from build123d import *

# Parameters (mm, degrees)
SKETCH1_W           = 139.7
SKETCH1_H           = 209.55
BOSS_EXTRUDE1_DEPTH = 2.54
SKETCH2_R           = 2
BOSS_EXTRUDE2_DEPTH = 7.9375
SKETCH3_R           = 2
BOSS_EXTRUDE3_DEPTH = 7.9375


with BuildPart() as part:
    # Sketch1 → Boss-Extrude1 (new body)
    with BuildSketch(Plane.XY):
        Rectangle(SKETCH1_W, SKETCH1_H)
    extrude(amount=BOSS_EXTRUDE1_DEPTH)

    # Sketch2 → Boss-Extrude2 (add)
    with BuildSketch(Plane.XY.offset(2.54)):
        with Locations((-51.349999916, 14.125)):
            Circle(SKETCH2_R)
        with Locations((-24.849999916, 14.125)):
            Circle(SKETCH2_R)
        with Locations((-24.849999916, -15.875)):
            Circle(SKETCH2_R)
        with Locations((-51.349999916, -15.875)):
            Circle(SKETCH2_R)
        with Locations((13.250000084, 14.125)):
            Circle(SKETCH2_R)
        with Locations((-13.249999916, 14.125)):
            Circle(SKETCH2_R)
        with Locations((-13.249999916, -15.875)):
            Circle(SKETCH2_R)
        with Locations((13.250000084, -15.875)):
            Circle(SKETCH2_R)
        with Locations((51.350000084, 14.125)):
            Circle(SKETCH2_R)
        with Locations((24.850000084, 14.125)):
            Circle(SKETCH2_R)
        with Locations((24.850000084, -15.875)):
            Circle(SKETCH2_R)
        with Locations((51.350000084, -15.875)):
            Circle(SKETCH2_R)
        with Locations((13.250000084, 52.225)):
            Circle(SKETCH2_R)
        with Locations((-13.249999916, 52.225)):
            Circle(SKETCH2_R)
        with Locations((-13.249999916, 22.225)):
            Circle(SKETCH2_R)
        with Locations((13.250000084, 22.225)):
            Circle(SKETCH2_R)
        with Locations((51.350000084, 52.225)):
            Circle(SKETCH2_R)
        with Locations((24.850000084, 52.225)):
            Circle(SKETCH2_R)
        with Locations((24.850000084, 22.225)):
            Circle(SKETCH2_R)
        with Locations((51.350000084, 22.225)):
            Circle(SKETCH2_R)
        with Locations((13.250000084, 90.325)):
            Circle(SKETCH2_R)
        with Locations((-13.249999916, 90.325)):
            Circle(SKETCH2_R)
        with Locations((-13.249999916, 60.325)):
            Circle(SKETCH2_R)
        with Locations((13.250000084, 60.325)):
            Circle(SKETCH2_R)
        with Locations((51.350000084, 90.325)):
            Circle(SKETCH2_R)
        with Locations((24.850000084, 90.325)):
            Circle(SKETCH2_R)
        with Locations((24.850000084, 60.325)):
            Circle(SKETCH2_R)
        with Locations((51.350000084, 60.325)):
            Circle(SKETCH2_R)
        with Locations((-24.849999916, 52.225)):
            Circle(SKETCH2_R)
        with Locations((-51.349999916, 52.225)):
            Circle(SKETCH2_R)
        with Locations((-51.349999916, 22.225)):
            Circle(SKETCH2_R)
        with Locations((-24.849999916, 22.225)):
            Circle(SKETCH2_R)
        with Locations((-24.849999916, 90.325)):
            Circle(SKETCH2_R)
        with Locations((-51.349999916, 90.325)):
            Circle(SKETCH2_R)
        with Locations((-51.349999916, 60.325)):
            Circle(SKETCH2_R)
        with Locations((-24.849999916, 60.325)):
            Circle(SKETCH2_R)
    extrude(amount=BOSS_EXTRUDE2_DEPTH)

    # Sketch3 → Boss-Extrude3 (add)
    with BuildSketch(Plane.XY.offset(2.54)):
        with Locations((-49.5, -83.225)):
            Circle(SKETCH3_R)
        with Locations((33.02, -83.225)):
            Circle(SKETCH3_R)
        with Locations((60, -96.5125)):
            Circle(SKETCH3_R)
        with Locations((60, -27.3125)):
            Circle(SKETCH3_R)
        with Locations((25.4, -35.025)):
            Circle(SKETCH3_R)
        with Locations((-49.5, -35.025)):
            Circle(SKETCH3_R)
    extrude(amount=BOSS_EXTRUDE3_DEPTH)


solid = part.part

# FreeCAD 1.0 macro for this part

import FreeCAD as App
import Part
import Sketcher

V = App.Vector
Q = App.Units.Quantity

doc = App.newDocument("Part")
body = doc.addObject("PartDesign::Body", "Body")

sketch1 = body.newObject("Sketcher::SketchObject", "Sketch")
sketch1.AttachmentSupport = (doc.getObject("XY_Plane"), [""])
sketch1.MapMode = "FlatFace"
sketch1.addGeometry(Part.LineSegment(V(-70, 105, 0), V(-70, -105, 0)), False)
sketch1.addGeometry(Part.LineSegment(V(-70, -105, 0), V(70, -105, 0)), False)
sketch1.addGeometry(Part.LineSegment(V(70, -105, 0), V(70, 105, 0)), False)
sketch1.addGeometry(Part.LineSegment(V(70, 105, 0), V(-70, 105, 0)), False)
sketch1.addConstraint(Sketcher.Constraint("Coincident", 0, 2, 1, 1))
sketch1.addConstraint(Sketcher.Constraint("Coincident", 1, 2, 2, 1))
sketch1.addConstraint(Sketcher.Constraint("Coincident", 2, 2, 3, 1))
sketch1.addConstraint(Sketcher.Constraint("Coincident", 3, 2, 0, 1))
sketch1.addConstraint(Sketcher.Constraint("Vertical", 0))
sketch1.addConstraint(Sketcher.Constraint("Horizontal", 1))
sketch1.addConstraint(Sketcher.Constraint("Vertical", 2))
sketch1.addConstraint(Sketcher.Constraint("Horizontal", 3))
sketch1.addConstraint(Sketcher.Constraint("Symmetric", 0, 2, 2, 2, -1, 1))
sketch1.addConstraint(Sketcher.Constraint("DistanceX", 1, 1, 1, 2, Q("5.5 in")))
sketch1.addConstraint(Sketcher.Constraint("DistanceY", 0, 2, 0, 1, Q("8.25 in")))
pad1 = body.newObject("PartDesign::Pad", "Pad")
pad1.Profile = sketch1
pad1.Length = Q("0.1 in")

sketch2 = body.newObject("Sketcher::SketchObject", "Sketch001")
sketch2.AttachmentSupport = (doc.getObject("XY_Plane"), [""])
sketch2.MapMode = "FlatFace"
sketch2.AttachmentOffset = App.Placement(V(0, 0, 0.1 * 25.4), App.Rotation())
sketch2.addGeometry(Part.Circle(V(-51.3, 14.1, 0), V(0, 0, 1), 2), False)
sketch2.addGeometry(Part.Circle(V(-24.8, 14.1, 0), V(0, 0, 1), 2), False)
sketch2.addGeometry(Part.Circle(V(-24.8, -15.9, 0), V(0, 0, 1), 2), False)
sketch2.addGeometry(Part.Circle(V(-51.3, -15.9, 0), V(0, 0, 1), 2), False)
sketch2.addGeometry(Part.Circle(V(13.3, 14.1, 0), V(0, 0, 1), 2), False)
sketch2.addGeometry(Part.Circle(V(-13.2, 14.1, 0), V(0, 0, 1), 2), False)
sketch2.addGeometry(Part.Circle(V(-13.2, -15.9, 0), V(0, 0, 1), 2), False)
sketch2.addGeometry(Part.Circle(V(13.3, -15.9, 0), V(0, 0, 1), 2), False)
sketch2.addGeometry(Part.Circle(V(51.4, 14.1, 0), V(0, 0, 1), 2), False)
sketch2.addGeometry(Part.Circle(V(24.9, 14.1, 0), V(0, 0, 1), 2), False)
sketch2.addGeometry(Part.Circle(V(24.9, -15.9, 0), V(0, 0, 1), 2), False)
sketch2.addGeometry(Part.Circle(V(51.4, -15.9, 0), V(0, 0, 1), 2), False)
sketch2.addGeometry(Part.Circle(V(13.3, 52.2, 0), V(0, 0, 1), 2), False)
sketch2.addGeometry(Part.Circle(V(-13.2, 52.2, 0), V(0, 0, 1), 2), False)
sketch2.addGeometry(Part.Circle(V(-13.2, 22.2, 0), V(0, 0, 1), 2), False)
sketch2.addGeometry(Part.Circle(V(13.3, 22.2, 0), V(0, 0, 1), 2), False)
sketch2.addGeometry(Part.Circle(V(51.4, 52.2, 0), V(0, 0, 1), 2), False)
sketch2.addGeometry(Part.Circle(V(24.9, 52.2, 0), V(0, 0, 1), 2), False)
sketch2.addGeometry(Part.Circle(V(24.9, 22.2, 0), V(0, 0, 1), 2), False)
sketch2.addGeometry(Part.Circle(V(51.4, 22.2, 0), V(0, 0, 1), 2), False)
sketch2.addGeometry(Part.Circle(V(13.3, 90.3, 0), V(0, 0, 1), 2), False)
sketch2.addGeometry(Part.Circle(V(-13.2, 90.3, 0), V(0, 0, 1), 2), False)
sketch2.addGeometry(Part.Circle(V(-13.2, 60.3, 0), V(0, 0, 1), 2), False)
sketch2.addGeometry(Part.Circle(V(13.3, 60.3, 0), V(0, 0, 1), 2), False)
sketch2.addGeometry(Part.Circle(V(51.4, 90.3, 0), V(0, 0, 1), 2), False)
sketch2.addGeometry(Part.Circle(V(24.9, 90.3, 0), V(0, 0, 1), 2), False)
sketch2.addGeometry(Part.Circle(V(24.9, 60.3, 0), V(0, 0, 1), 2), False)
sketch2.addGeometry(Part.Circle(V(51.4, 60.3, 0), V(0, 0, 1), 2), False)
sketch2.addGeometry(Part.Circle(V(-24.8, 52.2, 0), V(0, 0, 1), 2), False)
sketch2.addGeometry(Part.Circle(V(-51.3, 52.2, 0), V(0, 0, 1), 2), False)
sketch2.addGeometry(Part.Circle(V(-51.3, 22.2, 0), V(0, 0, 1), 2), False)
sketch2.addGeometry(Part.Circle(V(-24.8, 22.2, 0), V(0, 0, 1), 2), False)
sketch2.addGeometry(Part.Circle(V(-24.8, 90.3, 0), V(0, 0, 1), 2), False)
sketch2.addGeometry(Part.Circle(V(-51.3, 90.3, 0), V(0, 0, 1), 2), False)
sketch2.addGeometry(Part.Circle(V(-51.3, 60.3, 0), V(0, 0, 1), 2), False)
sketch2.addGeometry(Part.Circle(V(-24.8, 60.3, 0), V(0, 0, 1), 2), False)
sketch2.addConstraint(Sketcher.Constraint("Equal", 0, 1))
sketch2.addConstraint(Sketcher.Constraint("Equal", 1, 2))
sketch2.addConstraint(Sketcher.Constraint("Equal", 2, 3))
sketch2.addConstraint(Sketcher.Constraint("Equal", 3, 4))
sketch2.addConstraint(Sketcher.Constraint("Equal", 4, 5))
sketch2.addConstraint(Sketcher.Constraint("Equal", 5, 6))
sketch2.addConstraint(Sketcher.Constraint("Equal", 6, 7))
sketch2.addConstraint(Sketcher.Constraint("Equal", 7, 8))
sketch2.addConstraint(Sketcher.Constraint("Equal", 8, 9))
sketch2.addConstraint(Sketcher.Constraint("Equal", 9, 10))
sketch2.addConstraint(Sketcher.Constraint("Equal", 10, 11))
sketch2.addConstraint(Sketcher.Constraint("Equal", 11, 12))
sketch2.addConstraint(Sketcher.Constraint("Equal", 12, 13))
sketch2.addConstraint(Sketcher.Constraint("Equal", 13, 14))
sketch2.addConstraint(Sketcher.Constraint("Equal", 14, 15))
sketch2.addConstraint(Sketcher.Constraint("Equal", 15, 16))
sketch2.addConstraint(Sketcher.Constraint("Equal", 16, 17))
sketch2.addConstraint(Sketcher.Constraint("Equal", 17, 18))
sketch2.addConstraint(Sketcher.Constraint("Equal", 18, 19))
sketch2.addConstraint(Sketcher.Constraint("Equal", 19, 20))
sketch2.addConstraint(Sketcher.Constraint("Equal", 20, 21))
sketch2.addConstraint(Sketcher.Constraint("Equal", 21, 22))
sketch2.addConstraint(Sketcher.Constraint("Equal", 22, 23))
sketch2.addConstraint(Sketcher.Constraint("Equal", 23, 24))
sketch2.addConstraint(Sketcher.Constraint("Equal", 24, 25))
sketch2.addConstraint(Sketcher.Constraint("Equal", 25, 26))
sketch2.addConstraint(Sketcher.Constraint("Equal", 26, 27))
sketch2.addConstraint(Sketcher.Constraint("Equal", 27, 28))
sketch2.addConstraint(Sketcher.Constraint("Equal", 28, 29))
sketch2.addConstraint(Sketcher.Constraint("Equal", 29, 30))
sketch2.addConstraint(Sketcher.Constraint("Equal", 30, 31))
sketch2.addConstraint(Sketcher.Constraint("Equal", 31, 32))
sketch2.addConstraint(Sketcher.Constraint("Equal", 32, 33))
sketch2.addConstraint(Sketcher.Constraint("Equal", 33, 34))
sketch2.addConstraint(Sketcher.Constraint("Equal", 34, 35))
sketch2.addConstraint(Sketcher.Constraint("Symmetric", 4, 3, 5, 3, -2))
sketch2.addConstraint(Sketcher.Constraint("Symmetric", 6, 3, 7, 3, -2))
sketch2.addConstraint(Sketcher.Constraint("Symmetric", 0, 3, 8, 3, -2))
sketch2.addConstraint(Sketcher.Constraint("Symmetric", 1, 3, 9, 3, -2))
sketch2.addConstraint(Sketcher.Constraint("Symmetric", 2, 3, 10, 3, -2))
sketch2.addConstraint(Sketcher.Constraint("Symmetric", 3, 3, 11, 3, -2))
sketch2.addConstraint(Sketcher.Constraint("Symmetric", 12, 3, 13, 3, -2))
sketch2.addConstraint(Sketcher.Constraint("Symmetric", 14, 3, 15, 3, -2))
sketch2.addConstraint(Sketcher.Constraint("Symmetric", 20, 3, 21, 3, -2))
sketch2.addConstraint(Sketcher.Constraint("Symmetric", 22, 3, 23, 3, -2))
sketch2.addConstraint(Sketcher.Constraint("Symmetric", 17, 3, 28, 3, -2))
sketch2.addConstraint(Sketcher.Constraint("Symmetric", 16, 3, 29, 3, -2))
sketch2.addConstraint(Sketcher.Constraint("Symmetric", 19, 3, 30, 3, -2))
sketch2.addConstraint(Sketcher.Constraint("Symmetric", 18, 3, 31, 3, -2))
sketch2.addConstraint(Sketcher.Constraint("Symmetric", 25, 3, 32, 3, -2))
sketch2.addConstraint(Sketcher.Constraint("Symmetric", 24, 3, 33, 3, -2))
sketch2.addConstraint(Sketcher.Constraint("Symmetric", 27, 3, 34, 3, -2))
sketch2.addConstraint(Sketcher.Constraint("Symmetric", 26, 3, 35, 3, -2))
sketch2.addConstraint(Sketcher.Constraint("Horizontal", 0, 3, 1, 3))
sketch2.addConstraint(Sketcher.Constraint("Horizontal", 2, 3, 3, 3))
sketch2.addConstraint(Sketcher.Constraint("Horizontal", 1, 3, 4, 3))
sketch2.addConstraint(Sketcher.Constraint("Horizontal", 3, 3, 6, 3))
sketch2.addConstraint(Sketcher.Constraint("Horizontal", 13, 3, 16, 3))
sketch2.addConstraint(Sketcher.Constraint("Horizontal", 16, 3, 17, 3))
sketch2.addConstraint(Sketcher.Constraint("Horizontal", 15, 3, 18, 3))
sketch2.addConstraint(Sketcher.Constraint("Horizontal", 18, 3, 19, 3))
sketch2.addConstraint(Sketcher.Constraint("Horizontal", 21, 3, 24, 3))
sketch2.addConstraint(Sketcher.Constraint("Horizontal", 24, 3, 25, 3))
sketch2.addConstraint(Sketcher.Constraint("Horizontal", 23, 3, 26, 3))
sketch2.addConstraint(Sketcher.Constraint("Horizontal", 26, 3, 27, 3))
sketch2.addConstraint(Sketcher.Constraint("Vertical", 1, 3, 2, 3))
sketch2.addConstraint(Sketcher.Constraint("Vertical", 0, 3, 3, 3))
sketch2.addConstraint(Sketcher.Constraint("Vertical", 5, 3, 6, 3))
sketch2.addConstraint(Sketcher.Constraint("Vertical", 7, 3, 12, 3))
sketch2.addConstraint(Sketcher.Constraint("Vertical", 13, 3, 14, 3))
sketch2.addConstraint(Sketcher.Constraint("Vertical", 11, 3, 16, 3))
sketch2.addConstraint(Sketcher.Constraint("Vertical", 10, 3, 17, 3))
sketch2.addConstraint(Sketcher.Constraint("Vertical", 17, 3, 18, 3))
sketch2.addConstraint(Sketcher.Constraint("Vertical", 16, 3, 19, 3))
sketch2.addConstraint(Sketcher.Constraint("Vertical", 15, 3, 20, 3))
sketch2.addConstraint(Sketcher.Constraint("Vertical", 21, 3, 22, 3))
sketch2.addConstraint(Sketcher.Constraint("Vertical", 19, 3, 24, 3))
sketch2.addConstraint(Sketcher.Constraint("Vertical", 18, 3, 25, 3))
sketch2.addConstraint(Sketcher.Constraint("Vertical", 25, 3, 26, 3))
sketch2.addConstraint(Sketcher.Constraint("Vertical", 24, 3, 27, 3))
sketch2.addConstraint(Sketcher.Constraint("DistanceX", 1, 3, 8, 3, Q("3 in")))
sketch2.addConstraint(Sketcher.Constraint("DistanceX", 1, 3, 4, 3, Q("1.5 in")))
sketch2.addConstraint(Sketcher.Constraint("DistanceY", 4, 3, 12, 3, Q("1.5 in")))
sketch2.addConstraint(Sketcher.Constraint("DistanceY", 6, 3, 14, 3, Q("1.5 in")))
sketch2.addConstraint(Sketcher.Constraint("DistanceY", 12, 3, 20, 3, Q("1.5 in")))
sketch2.addConstraint(Sketcher.Constraint("DistanceY", 14, 3, 22, 3, Q("1.5 in")))
sketch2.addConstraint(Sketcher.Constraint("Diameter", 0, 4.0))
sketch2.addConstraint(Sketcher.Constraint("DistanceY", 2, 3, -1, 1, Q("0.625 in")))
sketch2.addConstraint(Sketcher.Constraint("DistanceX", 0, 3, -1, 1, 51.35))
sketch2.addConstraint(Sketcher.Constraint("DistanceY", -1, 1, 0, 3, 14.125))
pad2 = body.newObject("PartDesign::Pad", "Pad001")
pad2.Profile = sketch2
pad2.Length = Q("0.3125 in")

sketch3 = body.newObject("Sketcher::SketchObject", "Sketch002")
sketch3.AttachmentSupport = (doc.getObject("XY_Plane"), [""])
sketch3.MapMode = "FlatFace"
sketch3.AttachmentOffset = App.Placement(V(0, 0, 0.1 * 25.4), App.Rotation())
sketch3.addGeometry(Part.Circle(V(-49.5, -83.2, 0), V(0, 0, 1), 2), False)
sketch3.addGeometry(Part.Circle(V(33, -83.2, 0), V(0, 0, 1), 2), False)
sketch3.addGeometry(Part.Circle(V(60, -96.5, 0), V(0, 0, 1), 2), False)
sketch3.addGeometry(Part.Circle(V(60, -27.3, 0), V(0, 0, 1), 2), False)
sketch3.addGeometry(Part.Circle(V(25.4, -35, 0), V(0, 0, 1), 2), False)
sketch3.addGeometry(Part.Circle(V(-49.5, -35, 0), V(0, 0, 1), 2), False)
sketch3.addConstraint(Sketcher.Constraint("Equal", 0, 1))
sketch3.addConstraint(Sketcher.Constraint("Equal", 1, 2))
sketch3.addConstraint(Sketcher.Constraint("Equal", 2, 3))
sketch3.addConstraint(Sketcher.Constraint("Equal", 3, 4))
sketch3.addConstraint(Sketcher.Constraint("Equal", 4, 5))
sketch3.addConstraint(Sketcher.Constraint("Horizontal", 0, 3, 1, 3))
sketch3.addConstraint(Sketcher.Constraint("Horizontal", 4, 3, 5, 3))
sketch3.addConstraint(Sketcher.Constraint("Vertical", 2, 3, 3, 3))
sketch3.addConstraint(Sketcher.Constraint("Vertical", 0, 3, 5, 3))
sketch3.addConstraint(Sketcher.Constraint("DistanceX", -1, 1, 4, 3, Q("1 in")))
sketch3.addConstraint(Sketcher.Constraint("DistanceX", -1, 1, 1, 3, Q("1.3 in")))
sketch3.addConstraint(Sketcher.Constraint("Diameter", 0, 4.0))
sketch3.addConstraint(Sketcher.Constraint("DistanceX", 0, 3, -1, 1, 49.5))
sketch3.addConstraint(Sketcher.Constraint("DistanceY", 0, 3, -1, 1, 83.225))
sketch3.addConstraint(Sketcher.Constraint("DistanceX", -1, 1, 2, 3, 60.0))
sketch3.addConstraint(Sketcher.Constraint("DistanceY", 2, 3, -1, 1, 96.5125))
sketch3.addConstraint(Sketcher.Constraint("DistanceY", 3, 3, -1, 1, 27.3125))
sketch3.addConstraint(Sketcher.Constraint("DistanceY", 4, 3, -1, 1, 35.025))
pad3 = body.newObject("PartDesign::Pad", "Pad002")
pad3.Profile = sketch3
pad3.Length = Q("0.3125 in")

doc.recompute()
